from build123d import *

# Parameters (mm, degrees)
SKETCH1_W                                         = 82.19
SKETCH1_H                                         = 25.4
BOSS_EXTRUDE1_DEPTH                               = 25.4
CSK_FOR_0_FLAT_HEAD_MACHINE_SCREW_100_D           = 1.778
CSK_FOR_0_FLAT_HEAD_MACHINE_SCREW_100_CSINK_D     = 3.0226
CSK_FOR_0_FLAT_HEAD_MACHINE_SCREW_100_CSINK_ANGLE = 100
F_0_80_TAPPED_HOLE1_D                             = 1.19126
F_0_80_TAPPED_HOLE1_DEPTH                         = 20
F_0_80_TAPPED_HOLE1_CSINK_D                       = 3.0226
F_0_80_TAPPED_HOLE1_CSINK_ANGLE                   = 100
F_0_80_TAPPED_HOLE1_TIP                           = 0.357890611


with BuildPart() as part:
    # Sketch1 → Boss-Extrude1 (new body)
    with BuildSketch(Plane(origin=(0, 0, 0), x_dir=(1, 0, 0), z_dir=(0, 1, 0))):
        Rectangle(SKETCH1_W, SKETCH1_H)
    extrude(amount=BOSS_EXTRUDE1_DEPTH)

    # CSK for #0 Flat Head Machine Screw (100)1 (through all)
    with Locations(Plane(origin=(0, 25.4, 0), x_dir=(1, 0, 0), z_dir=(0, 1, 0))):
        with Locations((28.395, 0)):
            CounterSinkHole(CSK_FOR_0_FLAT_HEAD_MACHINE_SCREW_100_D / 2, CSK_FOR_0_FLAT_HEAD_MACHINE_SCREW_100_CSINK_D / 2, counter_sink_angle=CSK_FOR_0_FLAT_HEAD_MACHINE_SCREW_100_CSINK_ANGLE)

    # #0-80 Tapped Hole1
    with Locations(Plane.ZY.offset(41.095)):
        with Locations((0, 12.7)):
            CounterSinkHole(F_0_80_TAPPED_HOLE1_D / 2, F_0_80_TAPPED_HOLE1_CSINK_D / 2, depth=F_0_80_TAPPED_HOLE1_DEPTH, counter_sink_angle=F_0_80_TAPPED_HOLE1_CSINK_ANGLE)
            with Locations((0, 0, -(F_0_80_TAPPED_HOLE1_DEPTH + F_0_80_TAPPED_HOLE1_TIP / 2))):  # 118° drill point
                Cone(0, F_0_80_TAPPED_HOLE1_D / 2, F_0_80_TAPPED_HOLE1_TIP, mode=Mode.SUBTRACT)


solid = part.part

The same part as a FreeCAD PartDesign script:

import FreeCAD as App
import Part
import Sketcher

V = App.Vector
Q = App.Units.Quantity


def add_polygon(sketch, points):
    """Adds a closed chain of lines whose ends are joined by coincident constraints."""
    first, n = sketch.GeometryCount, len(points)
    for a, b in zip(points, points[1:] + points[:1]):
        sketch.addGeometry(Part.LineSegment(App.Vector(*a, 0), App.Vector(*b, 0)), False)
    for i in range(n):
        sketch.addConstraint(Sketcher.Constraint("Coincident", first + i, 2, first + (i + 1) % n, 1))

doc = App.newDocument("Part")
params = doc.addObject("Spreadsheet::Sheet", "Params")
for row, (alias, value) in enumerate([
    ("sketch1_height", "1 in"),
    ("pad1_length", "1 in"),
    ("sketch2_diameter", "0.07 in"),
    ("hole_diameter", "0.07 in"),
    ("hole_csink_diameter", "0.119 in"),
    ("hole2_diameter", "0.0469 in"),
    ("hole2_depth", "20 mm"),
    ("hole2_csink_diameter", "0.119 in"),
], start=1):
    params.set(f"A{row}", alias)
    params.set(f"B{row}", "=" + value)
    params.setAlias(f"B{row}", alias)

body = doc.addObject("PartDesign::Body", "Body")

# Sketch on XZ plane
sketch1 = body.newObject("Sketcher::SketchObject", "Sketch")
sketch1.AttachmentSupport = (doc.getObject("XZ_Plane"), [""])
sketch1.MapMode = "FlatFace"
add_polygon(sketch1, [(-41.095, -12.7), (-41.095, 12.7), (41.095, 12.7), (41.095, -12.7)])  # lines 0-3
sketch1.addConstraint([
    Sketcher.Constraint("Vertical", 0),
    Sketcher.Constraint("Horizontal", 1),
    Sketcher.Constraint("Vertical", 2),
    Sketcher.Constraint("Horizontal", 3),
    Sketcher.Constraint("Symmetric", 0, 2, 2, 2, -1, 1),
    Sketcher.Constraint("DistanceY", 0, 1, 0, 2, Q("1 in")),
    Sketcher.Constraint("DistanceX", 1, 1, 1, 2, Q("82.19 mm")),
])
sketch1.setExpression("Constraints[9]", "Params.sketch1_height")
pad1 = body.newObject("PartDesign::Pad", "Pad")
pad1.Profile = sketch1
pad1.setExpression("Length", "Params.pad1_length")
pad1.Reversed = True

# Sketch on XZ plane
sketch2 = body.newObject("Sketcher::SketchObject", "Sketch001")
sketch2.AttachmentSupport = (doc.getObject("XZ_Plane"), [""])
sketch2.MapMode = "FlatFace"
sketch2.AttachmentOffset = App.Placement(V(0, 0, -1 * 25.4), App.Rotation())
sketch2.addGeometry(Part.Circle(V(28.395, 0, 0), V(0, 0, 1), 0.889), False)
sketch2.addConstraint([
    Sketcher.Constraint("PointOnObject", 0, 3, -1),
    Sketcher.Constraint("Diameter", 0, Q("0.07 in")),
    Sketcher.Constraint("DistanceX", -1, 1, 0, 3, Q("28.395 mm")),
])
sketch2.setExpression("Constraints[1]", "Params.sketch2_diameter")
doc.recompute()
hole = body.newObject("PartDesign::Hole", "Hole")
hole.Profile = sketch2
hole.ThreadType = "None"
hole.setExpression("Diameter", "Params.hole_diameter")
hole.DepthType = "ThroughAll"
hole.HoleCutType = "Countersink"
hole.setExpression("HoleCutDiameter", "Params.hole_csink_diameter")
hole.HoleCutCountersinkAngle = 100
hole.Reversed = True

# Sketch on YZ plane
sketch3 = body.newObject("Sketcher::SketchObject", "Sketch002")
sketch3.AttachmentSupport = (doc.getObject("YZ_Plane"), [""])
sketch3.MapMode = "FlatFace"
sketch3.AttachmentOffset = App.Placement(V(0, 0, -41.095), App.Rotation())
sketch3.addGeometry(Part.Circle(V(12.7, 0, 0), V(0, 0, 1), 0.59563), False)
sketch3.addConstraint([
    Sketcher.Constraint("PointOnObject", 0, 3, -1),
    Sketcher.Constraint("Diameter", 0, Q("0.0469 in")),
    Sketcher.Constraint("DistanceX", -1, 1, 0, 3, Q("0.5 in")),
])
doc.recompute()
hole2 = body.newObject("PartDesign::Hole", "Hole001")
hole2.Profile = sketch3
hole2.ThreadType = "None"
hole2.setExpression("Diameter", "Params.hole2_diameter")
hole2.DepthType = "Dimension"
hole2.setExpression("Depth", "Params.hole2_depth")
hole2.DrillPoint = "Angled"
hole2.DrillPointAngle = 118
hole2.HoleCutType = "Countersink"
hole2.setExpression("HoleCutDiameter", "Params.hole2_csink_diameter")
hole2.HoleCutCountersinkAngle = 100
hole2.Reversed = True

doc.recompute()
